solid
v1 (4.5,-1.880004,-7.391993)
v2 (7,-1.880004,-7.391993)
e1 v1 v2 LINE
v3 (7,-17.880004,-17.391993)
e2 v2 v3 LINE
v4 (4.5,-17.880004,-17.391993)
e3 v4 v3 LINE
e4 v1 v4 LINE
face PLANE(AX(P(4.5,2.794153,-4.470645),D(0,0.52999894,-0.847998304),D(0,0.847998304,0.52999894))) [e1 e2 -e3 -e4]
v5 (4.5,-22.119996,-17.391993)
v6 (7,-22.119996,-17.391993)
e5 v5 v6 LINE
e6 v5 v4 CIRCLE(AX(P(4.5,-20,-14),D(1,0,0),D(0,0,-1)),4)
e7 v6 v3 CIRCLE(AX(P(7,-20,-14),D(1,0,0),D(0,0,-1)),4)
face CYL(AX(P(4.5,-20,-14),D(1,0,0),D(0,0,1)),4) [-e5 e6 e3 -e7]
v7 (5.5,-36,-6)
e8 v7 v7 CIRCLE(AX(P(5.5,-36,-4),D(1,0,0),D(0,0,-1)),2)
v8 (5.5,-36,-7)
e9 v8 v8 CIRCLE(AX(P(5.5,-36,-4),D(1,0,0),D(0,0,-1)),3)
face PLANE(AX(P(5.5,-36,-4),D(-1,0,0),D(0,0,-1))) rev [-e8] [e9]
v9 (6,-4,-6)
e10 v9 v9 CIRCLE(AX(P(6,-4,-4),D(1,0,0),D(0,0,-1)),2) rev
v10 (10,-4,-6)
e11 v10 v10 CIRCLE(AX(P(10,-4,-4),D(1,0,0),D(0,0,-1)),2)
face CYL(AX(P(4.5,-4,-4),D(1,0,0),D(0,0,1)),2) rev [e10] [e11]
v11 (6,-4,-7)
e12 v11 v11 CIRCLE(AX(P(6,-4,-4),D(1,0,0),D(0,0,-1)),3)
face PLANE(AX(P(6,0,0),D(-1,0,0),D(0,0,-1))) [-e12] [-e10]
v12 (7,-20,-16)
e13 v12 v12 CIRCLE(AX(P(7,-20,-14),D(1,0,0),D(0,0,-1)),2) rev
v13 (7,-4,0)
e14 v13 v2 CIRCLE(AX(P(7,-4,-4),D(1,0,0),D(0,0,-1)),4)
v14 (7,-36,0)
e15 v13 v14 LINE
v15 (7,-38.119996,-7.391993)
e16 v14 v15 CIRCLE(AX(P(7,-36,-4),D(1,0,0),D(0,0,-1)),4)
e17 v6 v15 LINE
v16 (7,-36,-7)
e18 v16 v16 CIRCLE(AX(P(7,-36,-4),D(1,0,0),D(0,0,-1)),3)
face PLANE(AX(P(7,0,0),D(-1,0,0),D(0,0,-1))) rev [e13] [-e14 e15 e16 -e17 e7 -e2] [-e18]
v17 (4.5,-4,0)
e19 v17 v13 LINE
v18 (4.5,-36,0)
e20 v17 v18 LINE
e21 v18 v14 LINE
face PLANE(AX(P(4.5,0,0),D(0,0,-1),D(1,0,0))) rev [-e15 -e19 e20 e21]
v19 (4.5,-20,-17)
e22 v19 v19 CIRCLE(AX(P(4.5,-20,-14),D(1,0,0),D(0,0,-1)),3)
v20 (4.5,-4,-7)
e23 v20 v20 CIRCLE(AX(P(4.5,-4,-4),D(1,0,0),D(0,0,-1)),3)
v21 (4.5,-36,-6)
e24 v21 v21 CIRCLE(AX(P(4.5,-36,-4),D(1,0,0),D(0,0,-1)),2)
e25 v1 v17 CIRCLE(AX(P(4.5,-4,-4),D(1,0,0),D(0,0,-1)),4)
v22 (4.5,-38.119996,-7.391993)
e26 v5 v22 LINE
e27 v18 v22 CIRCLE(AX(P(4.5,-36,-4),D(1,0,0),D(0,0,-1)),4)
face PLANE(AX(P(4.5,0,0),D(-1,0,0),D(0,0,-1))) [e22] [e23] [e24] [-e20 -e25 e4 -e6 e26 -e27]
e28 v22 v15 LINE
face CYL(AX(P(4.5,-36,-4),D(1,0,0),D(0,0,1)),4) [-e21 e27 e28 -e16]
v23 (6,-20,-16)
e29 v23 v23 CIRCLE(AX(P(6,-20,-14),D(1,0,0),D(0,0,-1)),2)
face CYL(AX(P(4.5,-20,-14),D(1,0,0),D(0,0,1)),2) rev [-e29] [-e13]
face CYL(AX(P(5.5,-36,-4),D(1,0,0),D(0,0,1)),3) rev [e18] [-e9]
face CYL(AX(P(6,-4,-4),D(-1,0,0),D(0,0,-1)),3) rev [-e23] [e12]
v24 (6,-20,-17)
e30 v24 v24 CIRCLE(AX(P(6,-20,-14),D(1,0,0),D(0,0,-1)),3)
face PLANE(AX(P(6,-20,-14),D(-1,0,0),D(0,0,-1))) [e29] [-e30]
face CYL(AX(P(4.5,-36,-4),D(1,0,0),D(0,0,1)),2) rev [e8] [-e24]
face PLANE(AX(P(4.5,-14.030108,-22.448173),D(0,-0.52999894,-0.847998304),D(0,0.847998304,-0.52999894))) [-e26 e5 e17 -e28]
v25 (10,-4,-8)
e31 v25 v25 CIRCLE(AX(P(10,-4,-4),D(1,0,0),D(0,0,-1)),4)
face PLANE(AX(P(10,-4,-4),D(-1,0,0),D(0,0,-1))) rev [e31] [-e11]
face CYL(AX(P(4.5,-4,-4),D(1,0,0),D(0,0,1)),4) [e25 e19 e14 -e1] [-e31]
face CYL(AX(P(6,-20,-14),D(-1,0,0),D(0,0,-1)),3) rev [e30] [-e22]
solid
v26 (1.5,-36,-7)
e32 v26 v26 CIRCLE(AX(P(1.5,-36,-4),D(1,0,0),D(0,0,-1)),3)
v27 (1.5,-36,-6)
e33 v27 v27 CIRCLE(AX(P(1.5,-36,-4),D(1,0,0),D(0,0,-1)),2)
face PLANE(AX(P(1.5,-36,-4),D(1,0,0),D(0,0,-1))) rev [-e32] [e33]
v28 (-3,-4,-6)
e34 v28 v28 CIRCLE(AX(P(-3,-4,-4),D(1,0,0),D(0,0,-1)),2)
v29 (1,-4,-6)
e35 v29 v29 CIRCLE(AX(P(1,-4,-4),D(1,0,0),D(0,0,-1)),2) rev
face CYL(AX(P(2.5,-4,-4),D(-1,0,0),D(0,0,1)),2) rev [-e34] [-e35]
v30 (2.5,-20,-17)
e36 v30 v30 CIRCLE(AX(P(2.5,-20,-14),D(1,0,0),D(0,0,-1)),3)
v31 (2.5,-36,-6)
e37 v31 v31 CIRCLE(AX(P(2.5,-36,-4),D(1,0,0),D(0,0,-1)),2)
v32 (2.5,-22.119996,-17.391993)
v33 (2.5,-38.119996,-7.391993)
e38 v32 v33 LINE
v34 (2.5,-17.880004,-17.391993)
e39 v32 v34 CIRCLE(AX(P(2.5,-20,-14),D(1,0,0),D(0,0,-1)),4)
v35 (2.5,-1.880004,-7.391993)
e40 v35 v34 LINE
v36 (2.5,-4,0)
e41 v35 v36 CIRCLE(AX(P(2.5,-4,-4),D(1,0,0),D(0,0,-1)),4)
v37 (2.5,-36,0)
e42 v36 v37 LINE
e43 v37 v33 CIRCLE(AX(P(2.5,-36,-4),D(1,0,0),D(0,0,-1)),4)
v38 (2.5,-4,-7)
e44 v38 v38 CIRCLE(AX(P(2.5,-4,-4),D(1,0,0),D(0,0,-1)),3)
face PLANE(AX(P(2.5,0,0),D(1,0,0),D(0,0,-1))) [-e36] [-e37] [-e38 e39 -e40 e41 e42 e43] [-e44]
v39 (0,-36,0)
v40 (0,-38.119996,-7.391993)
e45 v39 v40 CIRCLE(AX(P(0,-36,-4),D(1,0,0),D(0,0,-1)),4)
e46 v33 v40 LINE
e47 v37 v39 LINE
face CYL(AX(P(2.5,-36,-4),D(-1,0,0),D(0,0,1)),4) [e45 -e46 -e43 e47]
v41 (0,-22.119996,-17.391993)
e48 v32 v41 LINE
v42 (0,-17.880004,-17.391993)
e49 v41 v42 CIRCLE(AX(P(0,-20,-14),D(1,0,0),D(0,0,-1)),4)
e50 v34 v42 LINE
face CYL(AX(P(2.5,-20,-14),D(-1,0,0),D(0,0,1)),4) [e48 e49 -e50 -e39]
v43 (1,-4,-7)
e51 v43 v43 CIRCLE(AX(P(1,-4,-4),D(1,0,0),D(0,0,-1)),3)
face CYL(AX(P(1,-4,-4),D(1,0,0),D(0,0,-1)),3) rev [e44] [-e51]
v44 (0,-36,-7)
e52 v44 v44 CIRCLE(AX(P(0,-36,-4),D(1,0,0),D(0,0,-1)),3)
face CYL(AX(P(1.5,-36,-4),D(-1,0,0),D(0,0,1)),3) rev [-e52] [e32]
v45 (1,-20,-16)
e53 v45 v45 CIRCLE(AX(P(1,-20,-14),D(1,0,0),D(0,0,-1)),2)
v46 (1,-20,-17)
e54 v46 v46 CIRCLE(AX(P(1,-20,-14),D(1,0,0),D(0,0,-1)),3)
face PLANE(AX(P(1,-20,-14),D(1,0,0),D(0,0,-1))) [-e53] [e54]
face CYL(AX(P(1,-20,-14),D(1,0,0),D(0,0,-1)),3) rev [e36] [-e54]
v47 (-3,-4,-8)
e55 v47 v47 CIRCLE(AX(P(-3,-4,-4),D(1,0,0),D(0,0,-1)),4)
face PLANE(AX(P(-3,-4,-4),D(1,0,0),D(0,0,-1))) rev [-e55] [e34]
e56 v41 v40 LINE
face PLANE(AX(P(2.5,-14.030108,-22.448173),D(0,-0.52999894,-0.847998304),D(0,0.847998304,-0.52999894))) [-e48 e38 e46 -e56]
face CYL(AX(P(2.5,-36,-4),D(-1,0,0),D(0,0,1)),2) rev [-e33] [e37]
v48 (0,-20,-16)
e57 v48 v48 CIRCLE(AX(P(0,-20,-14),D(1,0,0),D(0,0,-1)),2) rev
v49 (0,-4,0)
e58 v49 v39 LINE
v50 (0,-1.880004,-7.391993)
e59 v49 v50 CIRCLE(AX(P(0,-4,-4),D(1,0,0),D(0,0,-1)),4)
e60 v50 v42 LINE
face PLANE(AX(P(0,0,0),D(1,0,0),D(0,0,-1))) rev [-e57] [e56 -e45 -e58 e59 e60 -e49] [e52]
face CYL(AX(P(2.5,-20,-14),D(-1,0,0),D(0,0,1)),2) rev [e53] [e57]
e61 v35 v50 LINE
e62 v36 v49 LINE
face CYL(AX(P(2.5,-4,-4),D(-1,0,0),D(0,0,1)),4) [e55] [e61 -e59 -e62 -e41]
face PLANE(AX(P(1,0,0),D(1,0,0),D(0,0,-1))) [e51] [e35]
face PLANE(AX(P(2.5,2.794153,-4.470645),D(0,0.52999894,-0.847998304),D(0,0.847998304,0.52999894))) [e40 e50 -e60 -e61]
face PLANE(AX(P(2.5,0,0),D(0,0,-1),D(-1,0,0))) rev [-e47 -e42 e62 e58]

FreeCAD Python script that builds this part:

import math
import FreeCAD as App
import Part
import Sketcher

V = App.Vector
Q = App.Units.Quantity

doc = App.newDocument("Part")
body = doc.addObject("PartDesign::Body", "Body")

sketch1 = doc.addObject("Sketcher::SketchObject", "Sketch")
body.addObject(sketch1)
sketch1.AttachmentSupport = (doc.YZ_Plane, [""])
sketch1.MapMode = "FlatFace"
sketch1.addGeometry([
    Part.LineSegment(V(-17.9, -17.4, 0), V(-1.9, -7.4, 0)),
    Part.ArcOfCircle(Part.Circle(V(-4, -4, 0), V(0, 0, 1), 4), math.radians(-58), math.radians(90)),
    Part.LineSegment(V(-4, 0, 0), V(-36, 0, 0)),
    Part.ArcOfCircle(Part.Circle(V(-36, -4, 0), V(0, 0, 1), 4), math.radians(90), math.radians(238)),
    Part.LineSegment(V(-38.1, -7.4, 0), V(-22.1, -17.4, 0)),
    Part.ArcOfCircle(Part.Circle(V(-20, -14, 0), V(0, 0, 1), 4), math.radians(-122), math.radians(-58)),
], False)
sketch1.addConstraint([
    Sketcher.Constraint("Tangent", 0, 2, 1, 1),
    Sketcher.Constraint("Tangent", 1, 2, 2, 1),
    Sketcher.Constraint("Tangent", 2, 2, 3, 1),
    Sketcher.Constraint("Tangent", 3, 2, 4, 1),
    Sketcher.Constraint("Tangent", 4, 2, 5, 1),
    Sketcher.Constraint("Tangent", 5, 2, 0, 1),
    Sketcher.Constraint("Horizontal", 2),
    Sketcher.Constraint("Equal", 1, 3),
    Sketcher.Constraint("Equal", 3, 5),
    Sketcher.Constraint("PointOnObject", 1, 2, -1),
    Sketcher.Constraint("Horizontal", 0, 2, 3, 2),
    Sketcher.Constraint("Radius", 1, Q("4 mm")),
    Sketcher.Constraint("DistanceX", 2, 2, 2, 1, Q("32 mm")),
    Sketcher.Constraint("DistanceX", 1, 3, -1, 1, Q("4 mm")),
    Sketcher.Constraint("DistanceY", 5, 3, -1, 1, Q("14 mm")),
])
pad1 = doc.addObject("PartDesign::Pad", "Pad")
body.addObject(pad1)
pad1.Profile = sketch1
pad1.Length = 2.5

sketch2 = doc.addObject("Sketcher::SketchObject", "Sketch001")
body.addObject(sketch2)
sketch2.AttachmentSupport = (doc.YZ_Plane, [""])
sketch2.MapMode = "FlatFace"
sketch2.AttachmentOffset = App.Placement(V(0, 0, -3), App.Rotation())
sketch2.addGeometry(Part.Circle(V(-4, -4, 0), V(0, 0, 1), 4), False)
sketch2.addConstraint([
    Sketcher.Constraint("Diameter", 0, Q("8 mm")),
    Sketcher.Constraint("DistanceX", 0, 3, -1, 1, Q("4 mm")),
    Sketcher.Constraint("DistanceY", 0, 3, -1, 1, Q("4 mm")),
])
pad2 = doc.addObject("PartDesign::Pad", "Pad001")
body.addObject(pad2)
pad2.Profile = sketch2
pad2.Length = 3

sketch3 = doc.addObject("Sketcher::SketchObject", "Sketch002")
body.addObject(sketch3)
sketch3.AttachmentSupport = (doc.YZ_Plane, [""])
sketch3.MapMode = "FlatFace"
sketch3.addGeometry([
    Part.Circle(V(-4, -4, 0), V(0, 0, 1), 2),
    Part.Circle(V(-20, -14, 0), V(0, 0, 1), 2),
    Part.Circle(V(-36, -4, 0), V(0, 0, 1), 2),
], False)
sketch3.addConstraint([
    Sketcher.Constraint("Equal", 0, 1),
    Sketcher.Constraint("Equal", 1, 2),
    Sketcher.Constraint("Horizontal", 0, 3, 2, 3),
    Sketcher.Constraint("Diameter", 0, Q("4 mm")),
    Sketcher.Constraint("DistanceX", 0, 3, -1, 1, Q("4 mm")),
    Sketcher.Constraint("DistanceY", 0, 3, -1, 1, Q("4 mm")),
    Sketcher.Constraint("DistanceX", 1, 3, -1, 1, Q("20 mm")),
    Sketcher.Constraint("DistanceY", 1, 3, -1, 1, Q("14 mm")),
    Sketcher.Constraint("DistanceX", 2, 3, -1, 1, Q("36 mm")),
])
pocket1 = doc.addObject("PartDesign::Pocket", "Pocket")
body.addObject(pocket1)
pocket1.Profile = sketch3
pocket1.Type = "ThroughAll"
pocket1.Midplane = True

sketch4 = doc.addObject("Sketcher::SketchObject", "Sketch003")
body.addObject(sketch4)
sketch4.AttachmentSupport = (doc.YZ_Plane, [""])
sketch4.MapMode = "FlatFace"
sketch4.AttachmentOffset = App.Placement(V(0, 0, 2.5), App.Rotation())
sketch4.addGeometry([
    Part.Circle(V(-4, -4, 0), V(0, 0, 1), 3),
    Part.Circle(V(-20, -14, 0), V(0, 0, 1), 3),
], False)
sketch4.addConstraint([
    Sketcher.Constraint("Equal", 0, 1),
    Sketcher.Constraint("Diameter", 0, Q("6 mm")),
    Sketcher.Constraint("DistanceX", 0, 3, -1, 1, Q("4 mm")),
    Sketcher.Constraint("DistanceY", 0, 3, -1, 1, Q("4 mm")),
    Sketcher.Constraint("DistanceX", 1, 3, -1, 1, Q("20 mm")),
    Sketcher.Constraint("DistanceY", 1, 3, -1, 1, Q("14 mm")),
])
pocket2 = doc.addObject("PartDesign::Pocket", "Pocket001")
body.addObject(pocket2)
pocket2.Profile = sketch4
pocket2.Length = 1.5

sketch5 = doc.addObject("Sketcher::SketchObject", "Sketch004")
body.addObject(sketch5)
sketch5.AttachmentSupport = (doc.YZ_Plane, [""])
sketch5.MapMode = "FlatFace"
sketch5.addGeometry(Part.Circle(V(-36, -4, 0), V(0, 0, 1), 3), False)
sketch5.addConstraint([
    Sketcher.Constraint("Diameter", 0, Q("6 mm")),
    Sketcher.Constraint("DistanceX", 0, 3, -1, 1, Q("36 mm")),
    Sketcher.Constraint("DistanceY", 0, 3, -1, 1, Q("4 mm")),
])
pocket3 = doc.addObject("PartDesign::Pocket", "Pocket002")
body.addObject(pocket3)
pocket3.Profile = sketch5
pocket3.Length = 1.5
pocket3.Reversed = True
body2 = doc.addObject("PartDesign::Body", "Body001")
doc.recompute()

mirroring = doc.addObject("Part::Mirroring", "Mirroring")
mirroring.Source = body
mirroring.Base = V(3.5, 0, 0)
mirroring.Normal = V(1, 0, 0)
body2.BaseFeature = mirroring
doc.recompute()
mirroring.Visibility = False

doc.recompute()
